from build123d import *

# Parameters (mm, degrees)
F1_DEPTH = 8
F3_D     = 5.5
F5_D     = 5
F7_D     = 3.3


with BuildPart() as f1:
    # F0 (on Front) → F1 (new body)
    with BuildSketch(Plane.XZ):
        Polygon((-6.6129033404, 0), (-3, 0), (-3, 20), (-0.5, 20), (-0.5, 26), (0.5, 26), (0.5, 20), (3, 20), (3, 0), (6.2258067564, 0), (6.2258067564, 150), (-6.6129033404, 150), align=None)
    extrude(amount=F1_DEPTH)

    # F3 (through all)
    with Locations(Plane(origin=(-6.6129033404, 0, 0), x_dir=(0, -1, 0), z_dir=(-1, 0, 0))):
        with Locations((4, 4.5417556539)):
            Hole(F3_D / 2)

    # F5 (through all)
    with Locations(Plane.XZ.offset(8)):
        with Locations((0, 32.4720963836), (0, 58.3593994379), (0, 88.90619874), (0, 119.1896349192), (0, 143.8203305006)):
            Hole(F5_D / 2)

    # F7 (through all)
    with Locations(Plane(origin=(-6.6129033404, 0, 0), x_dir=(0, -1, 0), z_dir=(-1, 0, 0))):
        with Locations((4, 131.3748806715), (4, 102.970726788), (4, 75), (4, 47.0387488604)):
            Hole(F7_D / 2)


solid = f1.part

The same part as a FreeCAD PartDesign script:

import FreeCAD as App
import Part
import Sketcher

doc = App.newDocument("Part")
body = doc.addObject("PartDesign::Body", "Body")

sketch1 = body.newObject("Sketcher::SketchObject", "Sketch")
sketch1.AttachmentSupport = (doc.getObject("XZ_Plane"), [""])
sketch1.MapMode = "FlatFace"
sketch1.addGeometry([
    Part.LineSegment(App.Vector(-6.6, 0, 0), App.Vector(-3, 0, 0)),
    Part.LineSegment(App.Vector(-3, 0, 0), App.Vector(-3, 20, 0)),
    Part.LineSegment(App.Vector(-3, 20, 0), App.Vector(-0.5, 20, 0)),
    Part.LineSegment(App.Vector(-0.5, 20, 0), App.Vector(-0.5, 26, 0)),
    Part.LineSegment(App.Vector(-0.5, 26, 0), App.Vector(0.5, 26, 0)),
    Part.LineSegment(App.Vector(0.5, 26, 0), App.Vector(0.5, 20, 0)),
    Part.LineSegment(App.Vector(0.5, 20, 0), App.Vector(3, 20, 0)),
    Part.LineSegment(App.Vector(3, 20, 0), App.Vector(3, 0, 0)),
    Part.LineSegment(App.Vector(3, 0, 0), App.Vector(6.2, 0, 0)),
    Part.LineSegment(App.Vector(6.2, 0, 0), App.Vector(6.2, 150, 0)),
    Part.LineSegment(App.Vector(6.2, 150, 0), App.Vector(-6.6, 150, 0)),
    Part.LineSegment(App.Vector(-6.6, 150, 0), App.Vector(-6.6, 0, 0)),
], False)
sketch1.addConstraint([
    Sketcher.Constraint("Coincident", 0, 2, 1, 1),
    Sketcher.Constraint("Coincident", 1, 2, 2, 1),
    Sketcher.Constraint("Coincident", 2, 2, 3, 1),
    Sketcher.Constraint("Coincident", 3, 2, 4, 1),
    Sketcher.Constraint("Coincident", 4, 2, 5, 1),
    Sketcher.Constraint("Coincident", 5, 2, 6, 1),
    Sketcher.Constraint("Coincident", 6, 2, 7, 1),
    Sketcher.Constraint("Coincident", 7, 2, 8, 1),
    Sketcher.Constraint("Coincident", 8, 2, 9, 1),
    Sketcher.Constraint("Coincident", 9, 2, 10, 1),
    Sketcher.Constraint("Coincident", 10, 2, 11, 1),
    Sketcher.Constraint("Coincident", 11, 2, 0, 1),
    Sketcher.Constraint("Horizontal", 0),
    Sketcher.Constraint("Vertical", 1),
    Sketcher.Constraint("Horizontal", 2),
    Sketcher.Constraint("Vertical", 3),
    Sketcher.Constraint("Horizontal", 4),
    Sketcher.Constraint("Vertical", 5),
    Sketcher.Constraint("Horizontal", 6),
    Sketcher.Constraint("Vertical", 7),
    Sketcher.Constraint("Horizontal", 8),
    Sketcher.Constraint("Vertical", 9),
    Sketcher.Constraint("Horizontal", 10),
    Sketcher.Constraint("Vertical", 11),
    Sketcher.Constraint("Symmetric", 0, 2, 7, 2, -1, 1),
    Sketcher.Constraint("Symmetric", 2, 2, 5, 2, -2),
    Sketcher.Constraint("PointOnObject", 0, 2, -1),
    Sketcher.Constraint("DistanceX", 4, 1, 4, 2, 1.0),
    Sketcher.Constraint("DistanceY", 1, 1, 1, 2, 20.0),
    Sketcher.Constraint("DistanceY", 3, 1, 3, 2, 6.0),
    Sketcher.Constraint("DistanceY", 9, 1, 9, 2, 150.0),
    Sketcher.Constraint("DistanceX", 2, 1, 2, 2, 2.5),
    Sketcher.Constraint("DistanceX", 10, 2, 10, 1, 12.83871),
    Sketcher.Constraint("DistanceX", 0, 1, 0, 2, 3.612903),
])
pad1 = body.newObject("PartDesign::Pad", "Pad")
pad1.Profile = sketch1
pad1.Length = 8

sketch2 = body.newObject("Sketcher::SketchObject", "Sketch001")
sketch2.AttachmentSupport = (doc.getObject("YZ_Plane"), [""])
sketch2.MapMode = "FlatFace"
sketch2.AttachmentOffset = App.Placement(App.Vector(0, 0, -6.612903), App.Rotation())
sketch2.addGeometry(Part.Circle(App.Vector(-4, 4.5, 0), App.Vector(0, 0, 1), 2.8), False)
sketch2.addConstraint([
    Sketcher.Constraint("Diameter", 0, 5.5),
    Sketcher.Constraint("DistanceX", 0, 3, -1, 1, 4.0),
    Sketcher.Constraint("DistanceY", -1, 1, 0, 3, 4.541756),
])
doc.recompute()
hole = body.newObject("PartDesign::Hole", "Hole")
hole.Profile = sketch2
hole.ThreadType = "None"
hole.Diameter = 5.5
hole.DepthType = "ThroughAll"
hole.Reversed = True

sketch3 = body.newObject("Sketcher::SketchObject", "Sketch002")
sketch3.AttachmentSupport = (doc.getObject("XZ_Plane"), [""])
sketch3.MapMode = "FlatFace"
sketch3.AttachmentOffset = App.Placement(App.Vector(0, 0, 8), App.Rotation())
sketch3.addGeometry([
    Part.Circle(App.Vector(0, 32.5, 0), App.Vector(0, 0, 1), 2.5),
    Part.Circle(App.Vector(0, 58.4, 0), App.Vector(0, 0, 1), 2.5),
    Part.Circle(App.Vector(0, 88.9, 0), App.Vector(0, 0, 1), 2.5),
    Part.Circle(App.Vector(0, 119.2, 0), App.Vector(0, 0, 1), 2.5),
    Part.Circle(App.Vector(0, 143.8, 0), App.Vector(0, 0, 1), 2.5),
], False)
sketch3.addConstraint([
    Sketcher.Constraint("Equal", 0, 1),
    Sketcher.Constraint("Equal", 1, 2),
    Sketcher.Constraint("Equal", 2, 3),
    Sketcher.Constraint("Equal", 3, 4),
    Sketcher.Constraint("PointOnObject", 0, 3, -2),
    Sketcher.Constraint("PointOnObject", 1, 3, -2),
    Sketcher.Constraint("PointOnObject", 2, 3, -2),
    Sketcher.Constraint("PointOnObject", 3, 3, -2),
    Sketcher.Constraint("PointOnObject", 4, 3, -2),
    Sketcher.Constraint("Diameter", 0, 5.0),
    Sketcher.Constraint("DistanceY", -1, 1, 1, 3, 58.359399),
    Sketcher.Constraint("DistanceY", -1, 1, 2, 3, 88.906199),
    Sketcher.Constraint("DistanceY", -1, 1, 4, 3, 143.820331),
    Sketcher.Constraint("DistanceY", 0, 3, 3, 3, 86.717539),
    Sketcher.Constraint("DistanceY", -1, 1, 0, 3, 32.472096),
])
doc.recompute()
hole2 = body.newObject("PartDesign::Hole", "Hole001")
hole2.Profile = sketch3
hole2.ThreadType = "None"
hole2.Diameter = 5
hole2.DepthType = "ThroughAll"

sketch4 = body.newObject("Sketcher::SketchObject", "Sketch003")
sketch4.AttachmentSupport = (doc.getObject("YZ_Plane"), [""])
sketch4.MapMode = "FlatFace"
sketch4.AttachmentOffset = App.Placement(App.Vector(0, 0, -6.612903), App.Rotation())
sketch4.addGeometry([
    Part.Circle(App.Vector(-4, 131.4, 0), App.Vector(0, 0, 1), 1.6),
    Part.Circle(App.Vector(-4, 103, 0), App.Vector(0, 0, 1), 1.6),
    Part.Circle(App.Vector(-4, 75, 0), App.Vector(0, 0, 1), 1.6),
    Part.Circle(App.Vector(-4, 47, 0), App.Vector(0, 0, 1), 1.6),
], False)
sketch4.addConstraint([
    Sketcher.Constraint("Equal", 0, 1),
    Sketcher.Constraint("Equal", 1, 2),
    Sketcher.Constraint("Equal", 2, 3),
    Sketcher.Constraint("Vertical", 0, 3, 1, 3),
    Sketcher.Constraint("Vertical", 1, 3, 2, 3),
    Sketcher.Constraint("Vertical", 2, 3, 3, 3),
    Sketcher.Constraint("Diameter", 0, 3.3),
    Sketcher.Constraint("DistanceX", 0, 3, -1, 1, 4.0),
    Sketcher.Constraint("DistanceY", -1, 1, 2, 3, 75.0),
    Sketcher.Constraint("DistanceY", -1, 1, 0, 3, 131.374881),
    Sketcher.Constraint("DistanceY", -1, 1, 3, 3, 47.038749),
    Sketcher.Constraint("DistanceY", -1, 1, 1, 3, 102.970727),
])
doc.recompute()
hole3 = body.newObject("PartDesign::Hole", "Hole002")
hole3.Profile = sketch4
hole3.ThreadType = "None"
hole3.Diameter = 3.3
hole3.DepthType = "ThroughAll"
hole3.Reversed = True

doc.recompute()
